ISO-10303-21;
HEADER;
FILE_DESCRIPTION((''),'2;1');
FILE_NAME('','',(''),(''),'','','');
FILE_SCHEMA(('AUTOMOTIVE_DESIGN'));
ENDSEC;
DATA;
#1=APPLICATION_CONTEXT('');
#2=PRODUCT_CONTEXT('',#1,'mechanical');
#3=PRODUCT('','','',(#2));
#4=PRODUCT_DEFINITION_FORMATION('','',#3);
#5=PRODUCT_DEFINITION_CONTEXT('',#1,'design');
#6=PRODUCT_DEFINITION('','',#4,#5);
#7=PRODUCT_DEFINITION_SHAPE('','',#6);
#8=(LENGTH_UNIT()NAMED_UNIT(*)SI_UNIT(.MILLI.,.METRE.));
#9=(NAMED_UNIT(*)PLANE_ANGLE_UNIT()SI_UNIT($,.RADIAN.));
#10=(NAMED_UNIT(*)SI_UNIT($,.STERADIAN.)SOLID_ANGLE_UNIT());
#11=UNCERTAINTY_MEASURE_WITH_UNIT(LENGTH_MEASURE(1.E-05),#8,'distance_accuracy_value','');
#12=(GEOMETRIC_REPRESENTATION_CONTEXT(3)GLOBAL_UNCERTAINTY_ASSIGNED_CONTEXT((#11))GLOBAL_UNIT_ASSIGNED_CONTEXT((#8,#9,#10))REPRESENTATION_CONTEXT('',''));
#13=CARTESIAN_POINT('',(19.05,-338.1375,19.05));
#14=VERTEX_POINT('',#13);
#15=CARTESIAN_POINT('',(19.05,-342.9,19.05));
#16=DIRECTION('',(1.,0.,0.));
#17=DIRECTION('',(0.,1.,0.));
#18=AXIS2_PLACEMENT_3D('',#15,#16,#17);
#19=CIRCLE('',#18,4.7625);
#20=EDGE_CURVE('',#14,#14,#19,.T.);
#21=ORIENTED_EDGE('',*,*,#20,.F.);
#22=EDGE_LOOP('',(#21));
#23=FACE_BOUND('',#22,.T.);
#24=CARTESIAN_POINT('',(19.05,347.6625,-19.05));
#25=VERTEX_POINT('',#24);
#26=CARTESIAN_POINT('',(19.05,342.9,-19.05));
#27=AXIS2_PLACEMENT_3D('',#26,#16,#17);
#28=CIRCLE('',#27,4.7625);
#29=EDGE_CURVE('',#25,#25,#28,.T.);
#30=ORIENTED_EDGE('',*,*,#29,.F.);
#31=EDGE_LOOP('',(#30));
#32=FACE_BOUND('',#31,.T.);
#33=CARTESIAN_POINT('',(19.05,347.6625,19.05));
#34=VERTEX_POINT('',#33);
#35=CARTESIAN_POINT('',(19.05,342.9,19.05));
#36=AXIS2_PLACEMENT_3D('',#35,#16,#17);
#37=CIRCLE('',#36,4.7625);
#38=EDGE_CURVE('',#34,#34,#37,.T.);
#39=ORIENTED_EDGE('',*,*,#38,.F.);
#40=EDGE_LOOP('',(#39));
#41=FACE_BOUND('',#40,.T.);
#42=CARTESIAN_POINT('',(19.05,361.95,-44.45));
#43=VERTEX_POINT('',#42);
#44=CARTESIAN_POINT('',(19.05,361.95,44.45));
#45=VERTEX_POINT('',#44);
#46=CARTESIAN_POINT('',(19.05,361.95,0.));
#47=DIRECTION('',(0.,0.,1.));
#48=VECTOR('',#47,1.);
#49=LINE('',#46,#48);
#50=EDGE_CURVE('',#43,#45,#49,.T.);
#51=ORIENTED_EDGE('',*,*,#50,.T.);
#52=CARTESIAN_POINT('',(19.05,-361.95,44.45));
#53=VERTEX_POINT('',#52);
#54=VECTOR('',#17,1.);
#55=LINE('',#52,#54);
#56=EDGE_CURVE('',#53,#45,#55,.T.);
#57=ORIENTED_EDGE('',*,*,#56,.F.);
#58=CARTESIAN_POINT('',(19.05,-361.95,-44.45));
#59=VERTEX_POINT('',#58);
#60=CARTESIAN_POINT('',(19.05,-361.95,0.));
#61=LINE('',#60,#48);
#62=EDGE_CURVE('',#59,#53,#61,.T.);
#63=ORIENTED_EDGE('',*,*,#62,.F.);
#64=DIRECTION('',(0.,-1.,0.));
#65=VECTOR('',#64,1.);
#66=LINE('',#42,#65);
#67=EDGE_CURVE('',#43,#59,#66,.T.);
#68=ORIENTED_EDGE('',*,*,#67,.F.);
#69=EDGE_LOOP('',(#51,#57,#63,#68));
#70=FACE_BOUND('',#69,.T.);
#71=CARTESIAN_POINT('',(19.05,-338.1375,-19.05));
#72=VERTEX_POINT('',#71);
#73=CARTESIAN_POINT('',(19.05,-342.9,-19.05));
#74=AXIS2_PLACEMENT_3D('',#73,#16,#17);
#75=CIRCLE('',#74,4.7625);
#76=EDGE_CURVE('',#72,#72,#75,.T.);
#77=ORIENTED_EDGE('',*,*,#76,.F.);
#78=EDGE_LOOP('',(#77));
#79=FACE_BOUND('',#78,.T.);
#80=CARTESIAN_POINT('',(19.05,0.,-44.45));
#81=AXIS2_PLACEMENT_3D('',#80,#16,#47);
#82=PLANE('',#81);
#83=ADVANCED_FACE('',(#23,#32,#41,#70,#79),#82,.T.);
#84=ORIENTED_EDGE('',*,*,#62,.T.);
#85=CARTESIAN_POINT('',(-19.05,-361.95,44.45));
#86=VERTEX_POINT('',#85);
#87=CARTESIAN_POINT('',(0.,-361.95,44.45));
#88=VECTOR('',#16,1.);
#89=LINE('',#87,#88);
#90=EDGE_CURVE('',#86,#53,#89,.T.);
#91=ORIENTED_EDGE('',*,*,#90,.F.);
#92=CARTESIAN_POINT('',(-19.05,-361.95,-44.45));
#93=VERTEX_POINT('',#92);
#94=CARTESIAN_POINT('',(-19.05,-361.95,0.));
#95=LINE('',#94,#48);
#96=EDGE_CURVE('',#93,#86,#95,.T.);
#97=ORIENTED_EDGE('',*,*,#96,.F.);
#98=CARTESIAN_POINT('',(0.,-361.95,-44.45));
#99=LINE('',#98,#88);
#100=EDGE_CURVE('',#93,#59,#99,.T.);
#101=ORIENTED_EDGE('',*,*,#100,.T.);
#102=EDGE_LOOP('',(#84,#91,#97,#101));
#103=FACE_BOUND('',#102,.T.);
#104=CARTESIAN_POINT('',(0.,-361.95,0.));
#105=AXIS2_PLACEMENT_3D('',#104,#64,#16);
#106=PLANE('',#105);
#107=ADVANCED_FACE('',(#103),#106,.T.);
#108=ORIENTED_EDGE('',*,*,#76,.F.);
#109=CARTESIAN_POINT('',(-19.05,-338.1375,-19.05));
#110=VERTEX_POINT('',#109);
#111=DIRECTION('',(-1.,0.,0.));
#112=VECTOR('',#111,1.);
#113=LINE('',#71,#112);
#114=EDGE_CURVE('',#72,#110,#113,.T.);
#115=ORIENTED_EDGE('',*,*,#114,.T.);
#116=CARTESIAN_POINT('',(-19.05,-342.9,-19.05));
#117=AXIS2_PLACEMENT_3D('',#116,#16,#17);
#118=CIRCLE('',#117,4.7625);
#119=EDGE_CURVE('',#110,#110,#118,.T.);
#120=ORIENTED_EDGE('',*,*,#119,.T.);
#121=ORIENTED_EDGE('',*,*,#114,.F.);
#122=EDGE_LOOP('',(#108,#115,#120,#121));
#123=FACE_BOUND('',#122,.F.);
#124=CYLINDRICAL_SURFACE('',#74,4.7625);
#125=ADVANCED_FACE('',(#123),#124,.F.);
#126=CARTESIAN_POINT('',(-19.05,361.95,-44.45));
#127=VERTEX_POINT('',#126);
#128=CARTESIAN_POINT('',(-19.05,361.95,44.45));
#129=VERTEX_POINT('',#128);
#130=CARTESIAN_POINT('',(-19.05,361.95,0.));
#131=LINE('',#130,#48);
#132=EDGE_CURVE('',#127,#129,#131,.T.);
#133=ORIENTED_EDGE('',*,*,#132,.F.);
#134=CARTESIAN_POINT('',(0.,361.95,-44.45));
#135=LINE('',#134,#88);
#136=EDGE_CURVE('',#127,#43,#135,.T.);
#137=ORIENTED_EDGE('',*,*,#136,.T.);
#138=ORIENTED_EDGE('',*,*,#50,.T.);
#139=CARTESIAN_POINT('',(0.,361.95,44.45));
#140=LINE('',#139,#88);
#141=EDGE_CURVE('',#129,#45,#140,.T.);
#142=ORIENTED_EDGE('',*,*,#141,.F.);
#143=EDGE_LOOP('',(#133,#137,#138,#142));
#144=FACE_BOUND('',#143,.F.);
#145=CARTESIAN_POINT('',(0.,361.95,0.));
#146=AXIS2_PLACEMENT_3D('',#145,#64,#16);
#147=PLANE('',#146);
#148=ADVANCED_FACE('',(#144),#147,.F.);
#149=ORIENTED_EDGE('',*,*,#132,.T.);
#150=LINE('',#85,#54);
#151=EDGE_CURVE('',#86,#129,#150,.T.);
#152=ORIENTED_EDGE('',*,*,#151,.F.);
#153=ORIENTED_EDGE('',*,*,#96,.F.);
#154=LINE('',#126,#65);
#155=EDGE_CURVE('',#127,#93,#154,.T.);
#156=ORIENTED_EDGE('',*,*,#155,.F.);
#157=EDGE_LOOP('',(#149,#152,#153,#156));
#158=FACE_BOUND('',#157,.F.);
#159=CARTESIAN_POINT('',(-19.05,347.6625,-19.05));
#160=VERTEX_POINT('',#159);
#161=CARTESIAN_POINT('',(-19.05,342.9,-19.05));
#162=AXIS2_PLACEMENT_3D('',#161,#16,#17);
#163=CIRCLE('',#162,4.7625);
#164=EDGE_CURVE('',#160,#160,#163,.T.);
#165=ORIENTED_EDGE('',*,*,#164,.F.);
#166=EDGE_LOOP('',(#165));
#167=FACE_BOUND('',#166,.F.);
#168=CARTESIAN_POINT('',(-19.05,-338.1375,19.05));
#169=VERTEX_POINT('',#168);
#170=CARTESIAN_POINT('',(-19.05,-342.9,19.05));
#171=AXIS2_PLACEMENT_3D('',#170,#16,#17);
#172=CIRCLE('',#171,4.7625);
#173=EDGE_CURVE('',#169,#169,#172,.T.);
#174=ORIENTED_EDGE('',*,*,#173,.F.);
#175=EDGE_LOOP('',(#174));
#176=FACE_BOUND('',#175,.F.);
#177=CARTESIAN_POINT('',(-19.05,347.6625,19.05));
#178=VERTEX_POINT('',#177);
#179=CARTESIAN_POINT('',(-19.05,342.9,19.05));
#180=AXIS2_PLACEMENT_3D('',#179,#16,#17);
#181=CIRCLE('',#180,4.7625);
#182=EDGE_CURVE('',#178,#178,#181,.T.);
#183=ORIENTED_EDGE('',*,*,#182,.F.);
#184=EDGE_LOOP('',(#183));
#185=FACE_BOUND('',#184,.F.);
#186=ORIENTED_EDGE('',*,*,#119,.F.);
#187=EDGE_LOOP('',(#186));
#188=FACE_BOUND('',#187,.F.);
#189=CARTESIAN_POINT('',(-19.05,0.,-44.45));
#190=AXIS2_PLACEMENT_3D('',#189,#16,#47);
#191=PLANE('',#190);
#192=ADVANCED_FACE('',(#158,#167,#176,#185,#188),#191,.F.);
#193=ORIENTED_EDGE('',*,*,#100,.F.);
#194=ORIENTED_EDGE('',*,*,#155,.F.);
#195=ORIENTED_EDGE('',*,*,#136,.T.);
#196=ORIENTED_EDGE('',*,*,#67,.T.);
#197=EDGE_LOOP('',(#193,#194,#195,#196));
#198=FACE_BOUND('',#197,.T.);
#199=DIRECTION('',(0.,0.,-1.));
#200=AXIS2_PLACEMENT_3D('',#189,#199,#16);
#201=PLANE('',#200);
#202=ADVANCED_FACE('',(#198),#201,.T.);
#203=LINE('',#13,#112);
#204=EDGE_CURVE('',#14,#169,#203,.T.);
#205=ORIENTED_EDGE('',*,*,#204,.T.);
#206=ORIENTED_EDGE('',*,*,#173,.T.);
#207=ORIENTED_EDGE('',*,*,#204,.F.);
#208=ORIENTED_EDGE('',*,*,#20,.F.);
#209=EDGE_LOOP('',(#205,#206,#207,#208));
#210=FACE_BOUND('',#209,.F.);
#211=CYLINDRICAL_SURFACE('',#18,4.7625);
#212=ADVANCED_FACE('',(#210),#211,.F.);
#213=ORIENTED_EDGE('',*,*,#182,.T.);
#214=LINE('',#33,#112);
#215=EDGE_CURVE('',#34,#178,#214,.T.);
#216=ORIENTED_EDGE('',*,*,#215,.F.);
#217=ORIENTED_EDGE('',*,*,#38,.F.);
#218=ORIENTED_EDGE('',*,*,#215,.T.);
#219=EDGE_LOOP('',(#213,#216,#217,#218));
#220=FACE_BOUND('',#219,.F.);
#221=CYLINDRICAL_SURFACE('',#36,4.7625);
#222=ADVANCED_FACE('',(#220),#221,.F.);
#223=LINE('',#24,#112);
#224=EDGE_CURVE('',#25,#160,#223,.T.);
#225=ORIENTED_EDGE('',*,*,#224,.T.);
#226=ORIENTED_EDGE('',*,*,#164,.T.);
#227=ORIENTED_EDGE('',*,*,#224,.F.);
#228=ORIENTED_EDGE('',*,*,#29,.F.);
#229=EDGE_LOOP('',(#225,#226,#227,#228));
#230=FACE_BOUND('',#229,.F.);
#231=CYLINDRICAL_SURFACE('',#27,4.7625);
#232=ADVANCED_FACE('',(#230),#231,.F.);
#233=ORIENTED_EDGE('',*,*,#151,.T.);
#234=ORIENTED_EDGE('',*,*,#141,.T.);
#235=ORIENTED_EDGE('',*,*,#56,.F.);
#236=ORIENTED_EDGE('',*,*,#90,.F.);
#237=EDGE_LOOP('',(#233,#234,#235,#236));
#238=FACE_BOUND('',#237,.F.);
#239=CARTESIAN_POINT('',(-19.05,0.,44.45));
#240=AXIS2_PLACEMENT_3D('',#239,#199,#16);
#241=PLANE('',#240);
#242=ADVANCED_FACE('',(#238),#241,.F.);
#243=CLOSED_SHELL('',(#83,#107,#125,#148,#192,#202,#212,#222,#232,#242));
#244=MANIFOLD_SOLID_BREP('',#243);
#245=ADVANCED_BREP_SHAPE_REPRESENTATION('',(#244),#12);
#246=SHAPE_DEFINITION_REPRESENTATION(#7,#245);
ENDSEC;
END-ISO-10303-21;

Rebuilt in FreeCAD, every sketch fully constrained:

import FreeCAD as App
import Part
import Sketcher
from FreeCAD import Vector
Q = App.Units.Quantity


def add_polygon(sketch, points):
    """Adds a closed chain of lines whose ends are joined by coincident constraints."""
    first, n = sketch.GeometryCount, len(points)
    for a, b in zip(points, points[1:] + points[:1]):
        sketch.addGeometry(Part.LineSegment(App.Vector(*a, 0), App.Vector(*b, 0)), False)
    for i in range(n):
        sketch.addConstraint(Sketcher.Constraint("Coincident", first + i, 2, first + (i + 1) % n, 1))

doc = App.newDocument("Part")
body = doc.addObject("PartDesign::Body", "Body")

# Sketch on XZ plane
sketch1 = body.newObject("Sketcher::SketchObject", "Sketch")
sketch1.AttachmentSupport = (doc.getObject("XZ_Plane"), [""])
sketch1.MapMode = "FlatFace"
add_polygon(sketch1, [(-19.05, 44.45), (-19.05, -44.45), (19.05, -44.45), (19.05, 44.45)])  # lines 0-3
sketch1.addConstraint([
    Sketcher.Constraint("Vertical", 0),
    Sketcher.Constraint("Horizontal", 1),
    Sketcher.Constraint("Vertical", 2),
    Sketcher.Constraint("Horizontal", 3),
    Sketcher.Constraint("Symmetric", 0, 2, 2, 2, -1, 1),
    Sketcher.Constraint("DistanceX", 1, 1, 1, 2, Q("1.5 in")),
    Sketcher.Constraint("DistanceY", 0, 2, 0, 1, Q("3.5 in")),
])
pad1 = body.newObject("PartDesign::Pad", "Pad")
pad1.Profile = sketch1
pad1.Length = Q("28.5 in")
pad1.Midplane = True

# Sketch on YZ plane
sketch2 = body.newObject("Sketcher::SketchObject", "Sketch001")
sketch2.AttachmentSupport = (doc.getObject("YZ_Plane"), [""])
sketch2.MapMode = "FlatFace"
sketch2.AttachmentOffset = App.Placement(Vector(0, 0, 0.75 * 25.4), App.Rotation())
sketch2.addGeometry([
    Part.Circle(Vector(-342.9, 19.05, 0), Vector(0, 0, 1), 4.7625),
    Part.Circle(Vector(-342.9, -19.05, 0), Vector(0, 0, 1), 4.7625),
    Part.Circle(Vector(342.9, 19.05, 0), Vector(0, 0, 1), 4.7625),
    Part.Circle(Vector(342.9, -19.05, 0), Vector(0, 0, 1), 4.7625),
], False)
sketch2.addConstraint([
    Sketcher.Constraint("Equal", 0, 1),
    Sketcher.Constraint("Equal", 1, 2),
    Sketcher.Constraint("Equal", 2, 3),
    Sketcher.Constraint("Symmetric", 1, 3, 2, 3, -1, 1),
    Sketcher.Constraint("Symmetric", 0, 3, 3, 3, -1, 1),
    Sketcher.Constraint("Symmetric", 0, 3, 2, 3, -2),
    Sketcher.Constraint("Diameter", 0, Q("0.375 in")),
    Sketcher.Constraint("DistanceX", 0, 3, 2, 3, Q("27 in")),
    Sketcher.Constraint("DistanceY", 1, 3, 0, 3, Q("1.5 in")),
])
pocket1 = body.newObject("PartDesign::Pocket", "Pocket")
pocket1.Profile = sketch2
pocket1.Type = "ThroughAll"

doc.recompute()
